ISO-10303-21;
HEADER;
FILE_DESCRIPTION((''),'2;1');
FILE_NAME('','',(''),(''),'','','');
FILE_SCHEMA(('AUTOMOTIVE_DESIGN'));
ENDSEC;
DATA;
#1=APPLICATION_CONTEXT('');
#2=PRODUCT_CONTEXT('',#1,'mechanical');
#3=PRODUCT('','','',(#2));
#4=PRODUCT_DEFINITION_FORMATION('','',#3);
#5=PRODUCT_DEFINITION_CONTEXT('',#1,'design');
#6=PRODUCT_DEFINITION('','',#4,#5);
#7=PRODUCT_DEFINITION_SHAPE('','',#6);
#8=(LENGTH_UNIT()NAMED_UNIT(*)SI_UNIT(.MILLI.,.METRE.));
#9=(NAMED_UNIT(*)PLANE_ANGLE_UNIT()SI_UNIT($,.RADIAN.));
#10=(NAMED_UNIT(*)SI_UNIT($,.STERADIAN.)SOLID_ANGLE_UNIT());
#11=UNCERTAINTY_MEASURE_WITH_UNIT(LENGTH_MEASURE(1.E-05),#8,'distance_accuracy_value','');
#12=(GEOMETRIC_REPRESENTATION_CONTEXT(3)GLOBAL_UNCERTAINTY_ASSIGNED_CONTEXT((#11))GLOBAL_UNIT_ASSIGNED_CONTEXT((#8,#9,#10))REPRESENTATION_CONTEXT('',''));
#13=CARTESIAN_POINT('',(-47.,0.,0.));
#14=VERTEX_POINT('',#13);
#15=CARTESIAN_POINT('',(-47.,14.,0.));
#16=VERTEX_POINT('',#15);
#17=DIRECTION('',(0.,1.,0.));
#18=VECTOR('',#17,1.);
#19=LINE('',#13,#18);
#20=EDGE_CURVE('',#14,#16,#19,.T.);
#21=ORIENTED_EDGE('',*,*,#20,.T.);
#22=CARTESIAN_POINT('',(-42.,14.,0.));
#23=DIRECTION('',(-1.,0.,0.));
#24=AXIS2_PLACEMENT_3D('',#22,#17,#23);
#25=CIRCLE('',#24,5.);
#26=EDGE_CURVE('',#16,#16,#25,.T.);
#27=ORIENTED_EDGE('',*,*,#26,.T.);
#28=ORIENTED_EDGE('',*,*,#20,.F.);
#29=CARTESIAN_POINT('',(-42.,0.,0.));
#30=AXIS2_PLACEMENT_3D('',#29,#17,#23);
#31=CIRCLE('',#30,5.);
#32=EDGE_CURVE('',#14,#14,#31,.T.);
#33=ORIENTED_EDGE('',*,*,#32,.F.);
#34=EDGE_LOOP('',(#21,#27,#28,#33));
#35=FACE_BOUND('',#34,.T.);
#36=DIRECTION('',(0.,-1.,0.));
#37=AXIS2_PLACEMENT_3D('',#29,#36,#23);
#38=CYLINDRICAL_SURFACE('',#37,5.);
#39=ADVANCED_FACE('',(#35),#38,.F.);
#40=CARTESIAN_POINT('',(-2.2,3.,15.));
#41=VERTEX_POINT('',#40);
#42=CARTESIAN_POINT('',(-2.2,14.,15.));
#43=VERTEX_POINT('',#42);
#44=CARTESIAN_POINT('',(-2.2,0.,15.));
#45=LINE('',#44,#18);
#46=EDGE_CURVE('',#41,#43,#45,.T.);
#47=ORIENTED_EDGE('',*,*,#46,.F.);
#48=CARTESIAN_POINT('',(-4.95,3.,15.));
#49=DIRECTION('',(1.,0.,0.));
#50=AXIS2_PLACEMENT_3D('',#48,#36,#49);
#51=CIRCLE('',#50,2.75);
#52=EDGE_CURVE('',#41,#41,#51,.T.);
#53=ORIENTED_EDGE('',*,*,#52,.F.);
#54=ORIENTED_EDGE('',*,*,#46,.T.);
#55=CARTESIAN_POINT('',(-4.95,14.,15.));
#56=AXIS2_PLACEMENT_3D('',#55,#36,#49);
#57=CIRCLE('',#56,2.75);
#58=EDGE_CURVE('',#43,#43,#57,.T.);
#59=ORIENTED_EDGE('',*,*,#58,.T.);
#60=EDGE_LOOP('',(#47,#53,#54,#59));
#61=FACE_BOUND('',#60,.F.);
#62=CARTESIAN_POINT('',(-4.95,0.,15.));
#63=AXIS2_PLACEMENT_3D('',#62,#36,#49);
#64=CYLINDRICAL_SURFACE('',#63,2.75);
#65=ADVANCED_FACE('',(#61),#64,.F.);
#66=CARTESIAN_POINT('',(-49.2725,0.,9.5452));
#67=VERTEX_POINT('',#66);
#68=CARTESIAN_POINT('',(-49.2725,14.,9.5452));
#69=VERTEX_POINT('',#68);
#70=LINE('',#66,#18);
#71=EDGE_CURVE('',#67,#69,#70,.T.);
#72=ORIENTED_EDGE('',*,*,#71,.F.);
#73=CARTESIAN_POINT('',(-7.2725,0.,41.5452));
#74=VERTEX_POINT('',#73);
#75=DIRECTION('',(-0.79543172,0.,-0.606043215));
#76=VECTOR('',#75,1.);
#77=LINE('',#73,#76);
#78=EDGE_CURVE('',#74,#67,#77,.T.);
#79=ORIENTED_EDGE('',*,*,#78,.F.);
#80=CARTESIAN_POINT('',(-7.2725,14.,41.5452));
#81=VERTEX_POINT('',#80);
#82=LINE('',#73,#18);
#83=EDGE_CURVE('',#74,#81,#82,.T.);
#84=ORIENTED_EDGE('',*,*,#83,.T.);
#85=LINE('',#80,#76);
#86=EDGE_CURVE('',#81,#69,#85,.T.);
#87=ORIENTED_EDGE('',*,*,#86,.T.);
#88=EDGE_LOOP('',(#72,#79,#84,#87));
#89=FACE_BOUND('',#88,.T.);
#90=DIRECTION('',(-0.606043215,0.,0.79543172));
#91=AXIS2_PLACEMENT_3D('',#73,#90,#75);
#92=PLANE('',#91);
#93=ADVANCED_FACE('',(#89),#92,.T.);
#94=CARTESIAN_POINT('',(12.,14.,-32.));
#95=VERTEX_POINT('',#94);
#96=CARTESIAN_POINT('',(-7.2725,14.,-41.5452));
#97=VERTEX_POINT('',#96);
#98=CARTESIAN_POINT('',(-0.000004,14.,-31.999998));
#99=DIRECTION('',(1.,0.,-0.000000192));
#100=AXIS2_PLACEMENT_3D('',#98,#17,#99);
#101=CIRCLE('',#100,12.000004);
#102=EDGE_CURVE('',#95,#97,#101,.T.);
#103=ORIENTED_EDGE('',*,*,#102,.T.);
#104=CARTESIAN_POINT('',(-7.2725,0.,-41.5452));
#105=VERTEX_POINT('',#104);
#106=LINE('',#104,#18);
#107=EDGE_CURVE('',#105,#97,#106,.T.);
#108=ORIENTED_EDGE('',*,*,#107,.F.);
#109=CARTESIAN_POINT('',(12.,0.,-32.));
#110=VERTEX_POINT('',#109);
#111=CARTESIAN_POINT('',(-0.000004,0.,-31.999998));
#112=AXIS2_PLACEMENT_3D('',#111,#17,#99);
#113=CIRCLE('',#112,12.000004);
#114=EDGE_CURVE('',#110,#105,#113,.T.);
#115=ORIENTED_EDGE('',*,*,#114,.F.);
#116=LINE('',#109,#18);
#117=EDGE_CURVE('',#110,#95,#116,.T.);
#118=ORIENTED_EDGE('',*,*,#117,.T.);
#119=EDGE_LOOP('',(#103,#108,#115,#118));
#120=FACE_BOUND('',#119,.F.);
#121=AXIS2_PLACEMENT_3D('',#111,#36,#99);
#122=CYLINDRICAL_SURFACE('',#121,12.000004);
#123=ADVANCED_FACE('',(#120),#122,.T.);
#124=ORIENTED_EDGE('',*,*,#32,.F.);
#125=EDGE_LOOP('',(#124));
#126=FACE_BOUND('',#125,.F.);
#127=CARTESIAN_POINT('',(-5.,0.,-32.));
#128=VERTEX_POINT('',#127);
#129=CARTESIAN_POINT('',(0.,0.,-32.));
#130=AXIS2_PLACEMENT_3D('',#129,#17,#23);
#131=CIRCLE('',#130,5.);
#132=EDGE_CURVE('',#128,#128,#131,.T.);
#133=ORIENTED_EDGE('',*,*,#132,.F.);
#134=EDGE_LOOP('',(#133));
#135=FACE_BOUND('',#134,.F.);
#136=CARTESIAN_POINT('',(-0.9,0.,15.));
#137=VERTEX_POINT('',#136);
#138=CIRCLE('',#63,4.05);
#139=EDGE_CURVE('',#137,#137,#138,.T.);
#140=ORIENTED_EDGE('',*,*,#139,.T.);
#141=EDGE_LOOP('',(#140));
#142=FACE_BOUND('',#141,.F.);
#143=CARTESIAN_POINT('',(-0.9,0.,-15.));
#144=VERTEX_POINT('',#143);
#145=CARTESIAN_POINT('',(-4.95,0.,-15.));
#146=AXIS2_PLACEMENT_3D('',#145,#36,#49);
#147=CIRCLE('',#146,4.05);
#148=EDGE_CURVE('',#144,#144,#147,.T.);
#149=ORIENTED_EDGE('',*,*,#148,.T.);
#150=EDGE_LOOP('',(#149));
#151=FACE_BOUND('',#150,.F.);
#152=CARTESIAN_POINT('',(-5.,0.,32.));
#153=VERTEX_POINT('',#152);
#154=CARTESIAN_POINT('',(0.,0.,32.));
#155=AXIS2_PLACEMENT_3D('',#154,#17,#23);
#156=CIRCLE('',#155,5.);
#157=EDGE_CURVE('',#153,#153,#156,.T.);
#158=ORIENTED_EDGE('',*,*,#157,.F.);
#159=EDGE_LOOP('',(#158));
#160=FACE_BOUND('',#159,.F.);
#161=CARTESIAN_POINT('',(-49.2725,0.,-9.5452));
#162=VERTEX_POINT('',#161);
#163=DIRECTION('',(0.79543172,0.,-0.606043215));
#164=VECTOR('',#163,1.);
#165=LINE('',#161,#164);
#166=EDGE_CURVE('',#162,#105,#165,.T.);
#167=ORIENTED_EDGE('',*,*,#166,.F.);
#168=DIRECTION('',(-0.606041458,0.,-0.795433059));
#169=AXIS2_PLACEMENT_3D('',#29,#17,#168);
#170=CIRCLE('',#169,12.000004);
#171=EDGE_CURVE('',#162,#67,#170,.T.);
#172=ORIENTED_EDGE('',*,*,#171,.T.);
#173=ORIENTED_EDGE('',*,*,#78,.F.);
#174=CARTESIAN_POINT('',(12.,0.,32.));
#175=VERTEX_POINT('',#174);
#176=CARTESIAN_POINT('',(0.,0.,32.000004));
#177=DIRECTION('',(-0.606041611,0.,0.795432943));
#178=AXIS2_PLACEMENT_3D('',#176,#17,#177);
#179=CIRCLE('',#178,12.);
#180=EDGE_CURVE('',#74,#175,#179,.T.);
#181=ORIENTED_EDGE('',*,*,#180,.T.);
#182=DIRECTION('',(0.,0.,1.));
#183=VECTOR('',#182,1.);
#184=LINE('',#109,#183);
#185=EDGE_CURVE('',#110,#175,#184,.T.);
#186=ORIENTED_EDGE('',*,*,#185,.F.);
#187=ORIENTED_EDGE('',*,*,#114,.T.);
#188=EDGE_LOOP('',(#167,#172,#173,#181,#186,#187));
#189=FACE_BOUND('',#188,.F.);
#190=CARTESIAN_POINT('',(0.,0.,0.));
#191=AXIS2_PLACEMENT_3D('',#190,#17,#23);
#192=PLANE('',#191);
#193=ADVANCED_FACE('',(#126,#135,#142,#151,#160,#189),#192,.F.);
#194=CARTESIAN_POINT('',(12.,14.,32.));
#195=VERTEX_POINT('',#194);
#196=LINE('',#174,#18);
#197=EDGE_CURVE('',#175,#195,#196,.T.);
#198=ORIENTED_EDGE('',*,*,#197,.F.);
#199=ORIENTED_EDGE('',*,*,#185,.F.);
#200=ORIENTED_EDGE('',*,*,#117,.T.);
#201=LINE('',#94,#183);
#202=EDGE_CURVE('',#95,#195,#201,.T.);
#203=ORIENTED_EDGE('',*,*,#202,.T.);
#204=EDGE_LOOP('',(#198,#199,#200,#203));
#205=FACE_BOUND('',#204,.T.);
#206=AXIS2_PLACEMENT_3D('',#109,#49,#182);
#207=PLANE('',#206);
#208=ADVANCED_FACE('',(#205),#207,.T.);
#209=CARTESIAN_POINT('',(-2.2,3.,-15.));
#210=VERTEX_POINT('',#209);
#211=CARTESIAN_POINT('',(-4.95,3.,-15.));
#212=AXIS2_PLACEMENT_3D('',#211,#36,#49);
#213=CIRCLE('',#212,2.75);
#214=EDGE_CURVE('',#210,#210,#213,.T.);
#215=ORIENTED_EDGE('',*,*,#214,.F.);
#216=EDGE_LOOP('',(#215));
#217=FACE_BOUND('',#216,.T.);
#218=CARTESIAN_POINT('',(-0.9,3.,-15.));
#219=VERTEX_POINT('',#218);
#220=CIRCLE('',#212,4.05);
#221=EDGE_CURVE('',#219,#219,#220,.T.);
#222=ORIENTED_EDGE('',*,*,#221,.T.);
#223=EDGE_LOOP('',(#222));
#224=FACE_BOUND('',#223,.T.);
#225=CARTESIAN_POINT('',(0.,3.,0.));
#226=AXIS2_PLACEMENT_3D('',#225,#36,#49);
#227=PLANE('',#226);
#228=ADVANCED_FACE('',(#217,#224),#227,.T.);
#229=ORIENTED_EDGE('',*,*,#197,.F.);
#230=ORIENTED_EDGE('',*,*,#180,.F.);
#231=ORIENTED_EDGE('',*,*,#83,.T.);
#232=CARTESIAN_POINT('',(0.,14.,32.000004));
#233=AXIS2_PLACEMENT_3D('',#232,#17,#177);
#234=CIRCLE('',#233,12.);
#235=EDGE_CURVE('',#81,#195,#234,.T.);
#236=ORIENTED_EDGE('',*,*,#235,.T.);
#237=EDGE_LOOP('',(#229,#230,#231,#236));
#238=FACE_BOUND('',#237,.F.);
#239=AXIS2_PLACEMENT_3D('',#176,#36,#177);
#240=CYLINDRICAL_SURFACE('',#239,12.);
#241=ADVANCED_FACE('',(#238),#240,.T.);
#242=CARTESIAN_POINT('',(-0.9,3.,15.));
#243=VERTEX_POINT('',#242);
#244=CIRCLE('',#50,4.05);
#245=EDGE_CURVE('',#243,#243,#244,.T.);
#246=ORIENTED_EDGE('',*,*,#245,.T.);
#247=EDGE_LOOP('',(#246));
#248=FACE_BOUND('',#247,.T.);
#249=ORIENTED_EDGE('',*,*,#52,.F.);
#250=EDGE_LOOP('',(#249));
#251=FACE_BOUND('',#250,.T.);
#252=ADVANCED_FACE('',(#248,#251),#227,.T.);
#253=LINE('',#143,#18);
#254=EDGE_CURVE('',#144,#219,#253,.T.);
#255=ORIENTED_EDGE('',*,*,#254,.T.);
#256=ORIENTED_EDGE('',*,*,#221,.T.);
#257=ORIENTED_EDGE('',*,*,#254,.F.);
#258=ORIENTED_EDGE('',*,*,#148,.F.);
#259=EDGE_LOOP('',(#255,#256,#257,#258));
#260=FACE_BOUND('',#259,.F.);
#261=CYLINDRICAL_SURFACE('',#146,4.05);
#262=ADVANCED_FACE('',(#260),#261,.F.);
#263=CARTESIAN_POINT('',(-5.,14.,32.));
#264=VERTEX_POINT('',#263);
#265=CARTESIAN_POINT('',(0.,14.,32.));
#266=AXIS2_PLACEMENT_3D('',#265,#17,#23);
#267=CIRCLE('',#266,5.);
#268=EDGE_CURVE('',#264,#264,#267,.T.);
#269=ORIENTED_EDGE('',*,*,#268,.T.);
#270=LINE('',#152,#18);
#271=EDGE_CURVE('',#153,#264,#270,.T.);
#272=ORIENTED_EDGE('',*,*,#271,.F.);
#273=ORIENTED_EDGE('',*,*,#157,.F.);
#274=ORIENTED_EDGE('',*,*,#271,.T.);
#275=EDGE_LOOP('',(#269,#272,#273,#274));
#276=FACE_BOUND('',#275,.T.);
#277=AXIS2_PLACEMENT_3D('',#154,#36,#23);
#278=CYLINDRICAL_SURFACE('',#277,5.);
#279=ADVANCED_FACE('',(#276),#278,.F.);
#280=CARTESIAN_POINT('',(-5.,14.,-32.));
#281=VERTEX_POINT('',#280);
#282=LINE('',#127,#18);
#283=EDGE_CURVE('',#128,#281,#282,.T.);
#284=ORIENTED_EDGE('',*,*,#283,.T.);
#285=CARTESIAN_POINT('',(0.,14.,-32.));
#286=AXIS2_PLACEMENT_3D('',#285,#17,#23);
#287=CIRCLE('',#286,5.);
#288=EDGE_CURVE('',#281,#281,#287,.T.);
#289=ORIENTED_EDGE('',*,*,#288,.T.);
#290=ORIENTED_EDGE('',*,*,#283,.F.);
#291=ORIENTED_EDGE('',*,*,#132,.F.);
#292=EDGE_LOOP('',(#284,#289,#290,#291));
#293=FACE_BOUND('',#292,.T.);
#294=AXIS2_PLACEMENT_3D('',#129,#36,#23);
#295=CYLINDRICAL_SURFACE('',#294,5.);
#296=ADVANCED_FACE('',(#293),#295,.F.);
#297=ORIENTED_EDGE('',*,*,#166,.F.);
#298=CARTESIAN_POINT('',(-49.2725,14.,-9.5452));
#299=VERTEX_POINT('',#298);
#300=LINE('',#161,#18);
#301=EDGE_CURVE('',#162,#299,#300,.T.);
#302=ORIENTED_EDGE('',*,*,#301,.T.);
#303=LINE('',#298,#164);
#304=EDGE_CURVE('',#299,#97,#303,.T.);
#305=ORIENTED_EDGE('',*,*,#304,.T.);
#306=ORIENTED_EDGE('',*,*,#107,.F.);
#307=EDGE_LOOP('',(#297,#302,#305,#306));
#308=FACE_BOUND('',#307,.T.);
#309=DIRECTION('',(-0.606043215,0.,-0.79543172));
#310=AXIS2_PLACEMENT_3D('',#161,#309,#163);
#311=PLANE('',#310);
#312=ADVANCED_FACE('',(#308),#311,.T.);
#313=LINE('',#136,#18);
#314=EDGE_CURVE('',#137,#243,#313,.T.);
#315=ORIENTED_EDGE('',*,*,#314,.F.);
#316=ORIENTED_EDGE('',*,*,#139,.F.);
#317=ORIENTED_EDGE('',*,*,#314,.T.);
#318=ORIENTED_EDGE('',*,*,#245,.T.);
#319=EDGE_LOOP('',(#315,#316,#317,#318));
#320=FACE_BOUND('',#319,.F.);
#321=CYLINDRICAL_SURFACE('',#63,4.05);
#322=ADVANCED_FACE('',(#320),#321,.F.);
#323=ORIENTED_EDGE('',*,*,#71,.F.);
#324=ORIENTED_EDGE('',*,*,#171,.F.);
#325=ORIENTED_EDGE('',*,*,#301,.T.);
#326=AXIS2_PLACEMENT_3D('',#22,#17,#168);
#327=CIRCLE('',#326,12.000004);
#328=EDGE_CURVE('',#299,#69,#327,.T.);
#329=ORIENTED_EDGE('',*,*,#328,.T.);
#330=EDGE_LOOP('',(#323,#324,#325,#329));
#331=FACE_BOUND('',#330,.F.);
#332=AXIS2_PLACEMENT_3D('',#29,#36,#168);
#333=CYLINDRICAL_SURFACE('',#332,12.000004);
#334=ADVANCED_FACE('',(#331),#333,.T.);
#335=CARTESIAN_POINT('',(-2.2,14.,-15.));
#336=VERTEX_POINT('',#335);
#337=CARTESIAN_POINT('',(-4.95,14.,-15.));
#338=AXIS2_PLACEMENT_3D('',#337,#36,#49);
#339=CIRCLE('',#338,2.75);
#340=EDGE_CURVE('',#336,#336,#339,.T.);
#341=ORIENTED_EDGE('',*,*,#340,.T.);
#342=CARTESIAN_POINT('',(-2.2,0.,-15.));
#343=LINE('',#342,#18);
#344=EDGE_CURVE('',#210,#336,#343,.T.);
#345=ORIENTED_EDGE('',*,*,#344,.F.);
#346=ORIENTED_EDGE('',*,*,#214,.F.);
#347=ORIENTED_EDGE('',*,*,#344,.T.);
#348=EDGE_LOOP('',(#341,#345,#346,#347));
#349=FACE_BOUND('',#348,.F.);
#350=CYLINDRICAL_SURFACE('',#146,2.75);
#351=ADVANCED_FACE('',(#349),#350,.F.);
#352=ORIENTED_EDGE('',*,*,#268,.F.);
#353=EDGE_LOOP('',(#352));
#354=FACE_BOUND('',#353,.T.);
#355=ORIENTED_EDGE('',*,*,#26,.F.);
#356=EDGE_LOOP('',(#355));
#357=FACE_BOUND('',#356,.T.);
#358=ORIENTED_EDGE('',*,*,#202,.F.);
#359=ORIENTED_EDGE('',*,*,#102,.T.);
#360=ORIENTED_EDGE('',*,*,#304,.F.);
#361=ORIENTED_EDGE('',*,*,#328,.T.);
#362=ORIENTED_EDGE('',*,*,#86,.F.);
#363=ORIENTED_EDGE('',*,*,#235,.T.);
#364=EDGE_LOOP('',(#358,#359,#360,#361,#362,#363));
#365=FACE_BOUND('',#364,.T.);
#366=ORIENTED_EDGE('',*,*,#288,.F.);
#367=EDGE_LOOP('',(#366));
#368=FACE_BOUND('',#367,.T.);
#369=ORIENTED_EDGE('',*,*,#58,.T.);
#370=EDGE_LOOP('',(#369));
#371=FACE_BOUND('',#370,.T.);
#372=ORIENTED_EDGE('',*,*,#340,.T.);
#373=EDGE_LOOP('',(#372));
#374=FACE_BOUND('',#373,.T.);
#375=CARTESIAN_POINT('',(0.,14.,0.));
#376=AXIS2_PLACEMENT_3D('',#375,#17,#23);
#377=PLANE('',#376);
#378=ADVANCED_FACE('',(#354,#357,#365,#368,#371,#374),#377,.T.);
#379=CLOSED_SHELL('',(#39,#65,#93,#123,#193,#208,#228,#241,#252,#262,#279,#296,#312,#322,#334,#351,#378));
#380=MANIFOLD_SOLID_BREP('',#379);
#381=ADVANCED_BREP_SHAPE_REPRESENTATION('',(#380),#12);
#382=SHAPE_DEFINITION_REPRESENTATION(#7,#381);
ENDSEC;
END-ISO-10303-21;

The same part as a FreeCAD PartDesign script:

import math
import FreeCAD as App
import Part
import Sketcher
Q = App.Units.Quantity

doc = App.newDocument("Part")
params = doc.addObject("Spreadsheet::Sheet", "Params")
for row, (alias, value) in enumerate([
    ("sketch1_diameter", "10 mm"),
    ("sketch1_radius", "12 mm"),
    ("sketch1_height", "64 mm"),
    ("pad1_length", "14 mm"),
    ("sketch2_diameter", "5.5 mm"),
    ("sketch3_diameter", "8.1 mm"),
    ("pocket2_length", "3 mm"),
], start=1):
    params.set(f"A{row}", alias)
    params.set(f"B{row}", "=" + value)
    params.setAlias(f"B{row}", alias)

body = doc.addObject("PartDesign::Body", "Body")

sketch1 = doc.addObject("Sketcher::SketchObject", "Sketch")
body.addObject(sketch1)
sketch1.AttachmentSupport = (doc.XZ_Plane, [""])
sketch1.MapMode = "FlatFace"
sketch1.addGeometry([
    Part.LineSegment(App.Vector(12, 32, 0), App.Vector(12, -32, 0)),
    Part.ArcOfCircle(Part.Circle(App.Vector(0, -32, 0), App.Vector(0, 0, 1), 12), math.radians(-127), math.radians(0)),
    Part.LineSegment(App.Vector(-7, -42, 0), App.Vector(-49, -10, 0)),
    Part.ArcOfCircle(Part.Circle(App.Vector(-42, 0, 0), App.Vector(0, 0, 1), 12), math.radians(127), math.radians(233)),
    Part.LineSegment(App.Vector(-49, 10, 0), App.Vector(-7, 42, 0)),
    Part.ArcOfCircle(Part.Circle(App.Vector(0, 32, 0), App.Vector(0, 0, 1), 12), math.radians(0), math.radians(127)),
    Part.Circle(App.Vector(0, -32, 0), App.Vector(0, 0, 1), 5),
    Part.Circle(App.Vector(-42, 0, 0), App.Vector(0, 0, 1), 5),
    Part.Circle(App.Vector(0, 32, 0), App.Vector(0, 0, 1), 5),
], False)
sketch1.addConstraint([
    Sketcher.Constraint("Tangent", 0, 2, 1, 2),
    Sketcher.Constraint("Tangent", 1, 1, 2, 1),
    Sketcher.Constraint("Tangent", 2, 2, 3, 2),
    Sketcher.Constraint("Tangent", 3, 1, 4, 1),
    Sketcher.Constraint("Tangent", 4, 2, 5, 2),
    Sketcher.Constraint("Tangent", 5, 1, 0, 1),
    Sketcher.Constraint("Vertical", 0),
    Sketcher.Constraint("Coincident", 6, 3, 1, 3),
    Sketcher.Constraint("Coincident", 7, 3, 3, 3),
    Sketcher.Constraint("Coincident", 8, 3, 5, 3),
    Sketcher.Constraint("Equal", 1, 3),
    Sketcher.Constraint("Equal", 3, 5),
    Sketcher.Constraint("Equal", 6, 7),
    Sketcher.Constraint("Equal", 7, 8),
    Sketcher.Constraint("Symmetric", 1, 3, 5, 3, -1, 1),
    Sketcher.Constraint("PointOnObject", 3, 3, -1),
    Sketcher.Constraint("Diameter", 6, Q("10 mm")),
    Sketcher.Constraint("Radius", 1, Q("12 mm")),
    Sketcher.Constraint("DistanceY", 0, 2, 0, 1, Q("64 mm")),
    Sketcher.Constraint("DistanceX", 3, 3, -1, 1, Q("42 mm")),
])
sketch1.setExpression("Constraints[16]", "Params.sketch1_diameter")
sketch1.setExpression("Constraints[17]", "Params.sketch1_radius")
sketch1.setExpression("Constraints[18]", "Params.sketch1_height")
pad1 = doc.addObject("PartDesign::Pad", "Pad")
body.addObject(pad1)
pad1.Profile = sketch1
pad1.setExpression("Length", "Params.pad1_length")
pad1.Reversed = True

sketch2 = doc.addObject("Sketcher::SketchObject", "Sketch001")
body.addObject(sketch2)
sketch2.AttachmentSupport = (doc.XZ_Plane, [""])
sketch2.MapMode = "FlatFace"
sketch2.addGeometry([
    Part.Circle(App.Vector(-5, -15, 0), App.Vector(0, 0, 1), 2.8),
    Part.Circle(App.Vector(-5, 15, 0), App.Vector(0, 0, 1), 2.8),
], False)
sketch2.addConstraint([
    Sketcher.Constraint("Equal", 0, 1),
    Sketcher.Constraint("Symmetric", 0, 3, 1, 3, -1),
    Sketcher.Constraint("Diameter", 0, Q("5.5 mm")),
    Sketcher.Constraint("DistanceY", 0, 3, -1, 1, Q("15 mm")),
    Sketcher.Constraint("DistanceX", 0, 3, -1, 1, Q("4.95 mm")),
])
sketch2.setExpression("Constraints[2]", "Params.sketch2_diameter")
pocket1 = doc.addObject("PartDesign::Pocket", "Pocket")
body.addObject(pocket1)
pocket1.Profile = sketch2
pocket1.Type = "ThroughAll"

sketch3 = doc.addObject("Sketcher::SketchObject", "Sketch002")
body.addObject(sketch3)
sketch3.AttachmentSupport = (doc.XZ_Plane, [""])
sketch3.MapMode = "FlatFace"
sketch3.addGeometry([
    Part.Circle(App.Vector(-5, 15, 0), App.Vector(0, 0, 1), 4),
    Part.Circle(App.Vector(-5, -15, 0), App.Vector(0, 0, 1), 4),
], False)
sketch3.addConstraint([
    Sketcher.Constraint("Equal", 0, 1),
    Sketcher.Constraint("Symmetric", 0, 3, 1, 3, -1),
    Sketcher.Constraint("Diameter", 0, Q("8.1 mm")),
    Sketcher.Constraint("DistanceY", -1, 1, 0, 3, Q("15 mm")),
    Sketcher.Constraint("DistanceX", 0, 3, -1, 1, Q("4.95 mm")),
])
sketch3.setExpression("Constraints[2]", "Params.sketch3_diameter")
pocket2 = doc.addObject("PartDesign::Pocket", "Pocket001")
body.addObject(pocket2)
pocket2.Profile = sketch3
pocket2.setExpression("Length", "Params.pocket2_length")

doc.recompute()
